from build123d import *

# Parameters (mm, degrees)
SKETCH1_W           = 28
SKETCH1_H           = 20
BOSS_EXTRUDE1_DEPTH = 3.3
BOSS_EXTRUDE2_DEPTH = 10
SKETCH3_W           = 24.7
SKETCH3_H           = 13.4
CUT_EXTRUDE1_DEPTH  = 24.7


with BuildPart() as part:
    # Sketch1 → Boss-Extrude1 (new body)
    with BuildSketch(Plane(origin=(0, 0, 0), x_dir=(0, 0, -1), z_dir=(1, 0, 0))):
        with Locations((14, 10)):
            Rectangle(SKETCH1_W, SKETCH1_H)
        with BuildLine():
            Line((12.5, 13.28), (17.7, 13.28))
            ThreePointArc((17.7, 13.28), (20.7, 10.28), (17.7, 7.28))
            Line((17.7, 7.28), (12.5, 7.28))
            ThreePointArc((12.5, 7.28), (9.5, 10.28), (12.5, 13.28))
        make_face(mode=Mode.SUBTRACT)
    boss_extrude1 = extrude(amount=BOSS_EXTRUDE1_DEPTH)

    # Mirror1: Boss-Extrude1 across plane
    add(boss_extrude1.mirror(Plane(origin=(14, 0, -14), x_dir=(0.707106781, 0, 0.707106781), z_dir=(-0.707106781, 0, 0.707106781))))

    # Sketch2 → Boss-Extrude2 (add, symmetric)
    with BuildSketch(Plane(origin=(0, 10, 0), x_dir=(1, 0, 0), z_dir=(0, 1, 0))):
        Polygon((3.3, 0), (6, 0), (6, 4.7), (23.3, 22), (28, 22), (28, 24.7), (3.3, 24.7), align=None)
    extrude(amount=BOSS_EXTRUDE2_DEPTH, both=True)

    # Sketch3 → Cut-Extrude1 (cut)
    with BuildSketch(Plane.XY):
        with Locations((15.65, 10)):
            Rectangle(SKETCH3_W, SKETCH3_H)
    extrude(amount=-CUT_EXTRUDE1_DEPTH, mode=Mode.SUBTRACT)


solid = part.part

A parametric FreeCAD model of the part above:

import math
import FreeCAD as App
import Part
import Sketcher
from FreeCAD import Vector


def add_polygon(sketch, points):
    """Adds a closed chain of lines whose ends are joined by coincident constraints."""
    first, n = sketch.GeometryCount, len(points)
    for a, b in zip(points, points[1:] + points[:1]):
        sketch.addGeometry(Part.LineSegment(App.Vector(*a, 0), App.Vector(*b, 0)), False)
    for i in range(n):
        sketch.addConstraint(Sketcher.Constraint("Coincident", first + i, 2, first + (i + 1) % n, 1))

doc = App.newDocument("Part")
body = doc.addObject("PartDesign::Body", "Body")

sketch1 = body.newObject("Sketcher::SketchObject", "Sketch")
sketch1.AttachmentSupport = (doc.getObject("YZ_Plane"), [""])
sketch1.MapMode = "FlatFace"
add_polygon(sketch1, [(20, 0), (0, 0), (0, -28), (20, -28)])
sketch1.addGeometry(Part.ArcOfCircle(Part.Circle(Vector(10.28, -12.5, 0), Vector(0, 0, 1), 3), math.radians(0), math.radians(180)), False)
sketch1.addGeometry(Part.LineSegment(Vector(13.28, -12.5, 0), Vector(13.28, -17.7, 0)), False)
sketch1.addGeometry(Part.ArcOfCircle(Part.Circle(Vector(10.28, -17.7, 0), Vector(0, 0, 1), 3), math.radians(180), math.radians(360)), False)
sketch1.addGeometry(Part.LineSegment(Vector(7.28, -17.7, 0), Vector(7.28, -12.5, 0)), False)
sketch1.addConstraint([
    Sketcher.Constraint("Tangent", 4, 1, 5, 1),
    Sketcher.Constraint("Tangent", 5, 2, 6, 2),
    Sketcher.Constraint("Tangent", 6, 1, 7, 1),
    Sketcher.Constraint("Tangent", 7, 2, 4, 2),
    Sketcher.Constraint("Horizontal", 0),
    Sketcher.Constraint("Vertical", 1),
    Sketcher.Constraint("Horizontal", 2),
    Sketcher.Constraint("Vertical", 3),
    Sketcher.Constraint("Vertical", 5),
    Sketcher.Constraint("Vertical", 7),
    Sketcher.Constraint("Coincident", 0, 2, -1, 1),
    Sketcher.Constraint("Radius", 4, 3.0),
    Sketcher.Constraint("DistanceX", 0, 2, 0, 1, 20.0),
    Sketcher.Constraint("DistanceY", 1, 2, 1, 1, 28.0),
    Sketcher.Constraint("DistanceY", 5, 2, 5, 1, 5.2),
    Sketcher.Constraint("DistanceY", 4, 3, -1, 1, 12.5),
    Sketcher.Constraint("DistanceX", -1, 1, 4, 3, 10.28),
])
pad1 = body.newObject("PartDesign::Pad", "Pad")
pad1.Profile = sketch1
pad1.Length = 3.3
doc.recompute()

datumplane = body.newObject("PartDesign::Plane", "DatumPlane")
datumplane.Placement = App.Placement(Vector(14, 0, -14), App.Rotation(Vector(-0.707106781, 0, -0.707106781), Vector(0, -1, 0), Vector(-0.707106781, 0, 0.707106781), "ZXY"))
mirrored = body.newObject("PartDesign::Mirrored", "Mirrored")
mirrored.Originals = [pad1]
mirrored.MirrorPlane = (datumplane, [""])
body.Tip = mirrored

sketch2 = body.newObject("Sketcher::SketchObject", "Sketch001")
sketch2.AttachmentSupport = (doc.getObject("XZ_Plane"), [""])
sketch2.MapMode = "FlatFace"
sketch2.AttachmentOffset = App.Placement(Vector(0, 0, -10), App.Rotation())
add_polygon(sketch2, [(3.3, 0), (6, 0), (6, -4.7), (23.3, -22), (28, -22), (28, -24.7), (3.3, -24.7)])
sketch2.addConstraint([
    Sketcher.Constraint("Horizontal", 0),
    Sketcher.Constraint("Vertical", 1),
    Sketcher.Constraint("Horizontal", 3),
    Sketcher.Constraint("Vertical", 4),
    Sketcher.Constraint("Horizontal", 5),
    Sketcher.Constraint("Vertical", 6),
    Sketcher.Constraint("PointOnObject", 0, 2, -1),
    Sketcher.Constraint("Equal", 3, 1),
    Sketcher.Constraint("Equal", 0, 4),
    Sketcher.Constraint("Equal", 5, 6),
    Sketcher.Constraint("DistanceX", 0, 1, 0, 2, 2.7),
    Sketcher.Constraint("DistanceX", 3, 1, 3, 2, 4.7),
    Sketcher.Constraint("DistanceX", 5, 2, 5, 1, 24.7),
    Sketcher.Constraint("DistanceX", -1, 1, 0, 2, 6.0),
])
pad2 = body.newObject("PartDesign::Pad", "Pad001")
pad2.Profile = sketch2
pad2.Length = 20
pad2.Midplane = True

sketch3 = body.newObject("Sketcher::SketchObject", "Sketch002")
sketch3.AttachmentSupport = (doc.getObject("XY_Plane"), [""])
sketch3.MapMode = "FlatFace"
add_polygon(sketch3, [(3.3, 16.7), (3.3, 3.3), (28, 3.3), (28, 16.7)])
sketch3.addConstraint([
    Sketcher.Constraint("Vertical", 0),
    Sketcher.Constraint("Horizontal", 1),
    Sketcher.Constraint("Vertical", 2),
    Sketcher.Constraint("Horizontal", 3),
    Sketcher.Constraint("DistanceX", 1, 1, 1, 2, 24.7),
    Sketcher.Constraint("DistanceY", 0, 2, 0, 1, 13.4),
    Sketcher.Constraint("DistanceX", -1, 1, 1, 2, 28.0),
    Sketcher.Constraint("DistanceY", -1, 1, 0, 2, 3.3),
])
pocket1 = body.newObject("PartDesign::Pocket", "Pocket")
pocket1.Profile = sketch3
pocket1.Length = 24.7

doc.recompute()
